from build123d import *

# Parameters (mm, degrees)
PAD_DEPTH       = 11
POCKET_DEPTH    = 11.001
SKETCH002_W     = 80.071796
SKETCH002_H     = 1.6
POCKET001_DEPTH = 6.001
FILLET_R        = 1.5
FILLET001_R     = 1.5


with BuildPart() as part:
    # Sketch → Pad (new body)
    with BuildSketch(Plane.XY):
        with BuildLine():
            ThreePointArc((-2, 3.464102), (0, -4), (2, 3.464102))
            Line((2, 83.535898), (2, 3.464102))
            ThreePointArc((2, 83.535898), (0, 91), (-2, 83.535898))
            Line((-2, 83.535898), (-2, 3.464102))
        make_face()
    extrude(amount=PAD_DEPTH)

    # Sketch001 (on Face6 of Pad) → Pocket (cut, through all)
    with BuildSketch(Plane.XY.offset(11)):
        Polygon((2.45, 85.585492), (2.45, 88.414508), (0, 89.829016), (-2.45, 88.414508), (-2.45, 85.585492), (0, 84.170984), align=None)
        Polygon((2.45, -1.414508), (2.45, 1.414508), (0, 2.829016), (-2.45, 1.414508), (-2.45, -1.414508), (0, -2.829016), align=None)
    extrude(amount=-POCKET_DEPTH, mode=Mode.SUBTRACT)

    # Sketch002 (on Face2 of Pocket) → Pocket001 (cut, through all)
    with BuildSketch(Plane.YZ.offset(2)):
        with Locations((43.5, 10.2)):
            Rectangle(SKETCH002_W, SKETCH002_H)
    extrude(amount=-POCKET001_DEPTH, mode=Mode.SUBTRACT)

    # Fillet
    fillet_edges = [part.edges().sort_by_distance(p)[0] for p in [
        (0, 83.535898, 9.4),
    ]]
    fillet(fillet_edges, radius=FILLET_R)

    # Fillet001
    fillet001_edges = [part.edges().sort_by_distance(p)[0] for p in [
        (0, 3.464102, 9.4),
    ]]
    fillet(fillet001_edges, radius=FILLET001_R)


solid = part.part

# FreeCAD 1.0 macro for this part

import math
import FreeCAD as App
import Part
import Sketcher

V = App.Vector
Q = App.Units.Quantity


def edges_at(feature, points):
    """Names of the edges that pass closest to the given points."""
    edges = feature.Shape.Edges
    near = lambda p: min(range(len(edges)), key=lambda i: edges[i].distToShape(Part.Vertex(*p))[0])
    return sorted({f"Edge{near(p) + 1}" for p in points})

doc = App.newDocument("Part")
body = doc.addObject("PartDesign::Body", "Body")

sketch1 = body.newObject("Sketcher::SketchObject", "Sketch")
sketch1.AttachmentSupport = (doc.getObject("XY_Plane"), [""])
sketch1.MapMode = "FlatFace"
sketch1.addGeometry(Part.ArcOfCircle(Part.Circle(V(0, 0, 0), V(0, 0, 1), 4), math.radians(120), math.radians(420)), False)
sketch1.addGeometry(Part.LineSegment(V(2, 3.5, 0), V(2, 83.5, 0)), False)
sketch1.addGeometry(Part.ArcOfCircle(Part.Circle(V(0, 87, 0), V(0, 0, 1), 4), math.radians(-60), math.radians(240)), False)
sketch1.addGeometry(Part.LineSegment(V(-2, 83.5, 0), V(-2, 3.5, 0)), False)
sketch1.addConstraint(Sketcher.Constraint("Coincident", 0, 2, 1, 1))
sketch1.addConstraint(Sketcher.Constraint("Coincident", 1, 2, 2, 1))
sketch1.addConstraint(Sketcher.Constraint("Coincident", 2, 2, 3, 1))
sketch1.addConstraint(Sketcher.Constraint("Coincident", 3, 2, 0, 1))
sketch1.addConstraint(Sketcher.Constraint("Vertical", 1))
sketch1.addConstraint(Sketcher.Constraint("Vertical", 3))
sketch1.addConstraint(Sketcher.Constraint("Coincident", 0, 3, -1, 1))
sketch1.addConstraint(Sketcher.Constraint("Equal", 0, 2))
sketch1.addConstraint(Sketcher.Constraint("Symmetric", 1, 2, 2, 2, -2))
sketch1.addConstraint(Sketcher.Constraint("Radius", 0, 4.0))
sketch1.addConstraint(Sketcher.Constraint("DistanceY", -1, 1, 2, 3, 87.0))
sketch1.addConstraint(Sketcher.Constraint("DistanceX", -1, 1, 0, 2, 2.0))
pad1 = body.newObject("PartDesign::Pad", "Pad")
pad1.Profile = sketch1
pad1.Length = 11

sketch2 = body.newObject("Sketcher::SketchObject", "Sketch001")
sketch2.AttachmentSupport = (doc.getObject("XY_Plane"), [""])
sketch2.MapMode = "FlatFace"
sketch2.AttachmentOffset = App.Placement(V(0, 0, 11), App.Rotation())
sketch2.addGeometry(Part.LineSegment(V(2.5, 85.6, 0), V(2.5, 88.4, 0)), False)
sketch2.addGeometry(Part.LineSegment(V(2.5, 88.4, 0), V(0, 89.8, 0)), False)
sketch2.addGeometry(Part.LineSegment(V(0, 89.8, 0), V(-2.5, 88.4, 0)), False)
sketch2.addGeometry(Part.LineSegment(V(-2.5, 88.4, 0), V(-2.5, 85.6, 0)), False)
sketch2.addGeometry(Part.LineSegment(V(-2.5, 85.6, 0), V(0, 84.2, 0)), False)
sketch2.addGeometry(Part.LineSegment(V(0, 84.2, 0), V(2.5, 85.6, 0)), False)
sketch2.addGeometry(Part.LineSegment(V(2.5, -1.4, 0), V(2.5, 1.4, 0)), False)
sketch2.addGeometry(Part.LineSegment(V(2.5, 1.4, 0), V(0, 2.8, 0)), False)
sketch2.addGeometry(Part.LineSegment(V(0, 2.8, 0), V(-2.5, 1.4, 0)), False)
sketch2.addGeometry(Part.LineSegment(V(-2.5, 1.4, 0), V(-2.5, -1.4, 0)), False)
sketch2.addGeometry(Part.LineSegment(V(-2.5, -1.4, 0), V(0, -2.8, 0)), False)
sketch2.addGeometry(Part.LineSegment(V(0, -2.8, 0), V(2.5, -1.4, 0)), False)
sketch2.addConstraint(Sketcher.Constraint("Coincident", 0, 2, 1, 1))
sketch2.addConstraint(Sketcher.Constraint("Coincident", 1, 2, 2, 1))
sketch2.addConstraint(Sketcher.Constraint("Coincident", 2, 2, 3, 1))
sketch2.addConstraint(Sketcher.Constraint("Coincident", 3, 2, 4, 1))
sketch2.addConstraint(Sketcher.Constraint("Coincident", 4, 2, 5, 1))
sketch2.addConstraint(Sketcher.Constraint("Coincident", 5, 2, 0, 1))
sketch2.addConstraint(Sketcher.Constraint("Coincident", 6, 2, 7, 1))
sketch2.addConstraint(Sketcher.Constraint("Coincident", 7, 2, 8, 1))
sketch2.addConstraint(Sketcher.Constraint("Coincident", 8, 2, 9, 1))
sketch2.addConstraint(Sketcher.Constraint("Coincident", 9, 2, 10, 1))
sketch2.addConstraint(Sketcher.Constraint("Coincident", 10, 2, 11, 1))
sketch2.addConstraint(Sketcher.Constraint("Coincident", 11, 2, 6, 1))
sketch2.addConstraint(Sketcher.Constraint("Vertical", 0))
sketch2.addConstraint(Sketcher.Constraint("Vertical", 3))
sketch2.addConstraint(Sketcher.Constraint("Vertical", 6))
sketch2.addConstraint(Sketcher.Constraint("Vertical", 9))
sketch2.addConstraint(Sketcher.Constraint("Symmetric", 6, 2, 9, 2, -1, 1))
sketch2.addConstraint(Sketcher.Constraint("Symmetric", 7, 2, 10, 2, -1, 1))
sketch2.addConstraint(Sketcher.Constraint("Symmetric", 0, 2, 2, 2, -2))
sketch2.addConstraint(Sketcher.Constraint("PointOnObject", 1, 2, -2))
sketch2.addConstraint(Sketcher.Constraint("PointOnObject", 4, 2, -2))
sketch2.addConstraint(Sketcher.Constraint("PointOnObject", 7, 2, -2))
sketch2.addConstraint(Sketcher.Constraint("Parallel", 1, 4))
sketch2.addConstraint(Sketcher.Constraint("Parallel", 2, 5))
sketch2.addConstraint(Sketcher.Constraint("Parallel", 4, 7))
sketch2.addConstraint(Sketcher.Constraint("Parallel", 5, 8))
sketch2.addConstraint(Sketcher.Constraint("Parallel", 8, 11))
sketch2.addConstraint(Sketcher.Constraint("Vertical", 5, 2, 6, 2))
sketch2.addConstraint(Sketcher.Constraint("Equal", 3, 6))
sketch2.addConstraint(Sketcher.Constraint("Angle", 1, Q("150.000003 deg")))
sketch2.addConstraint(Sketcher.Constraint("DistanceY", 6, 2, 0, 2, 87.0))
sketch2.addConstraint(Sketcher.Constraint("DistanceX", 2, 2, 0, 2, 4.9))
sketch2.addConstraint(Sketcher.Constraint("DistanceY", 0, 1, 0, 2, 2.829016))
pocket1 = body.newObject("PartDesign::Pocket", "Pocket")
pocket1.Profile = sketch2
pocket1.Type = "ThroughAll"

sketch3 = body.newObject("Sketcher::SketchObject", "Sketch002")
sketch3.AttachmentSupport = (doc.getObject("YZ_Plane"), [""])
sketch3.MapMode = "FlatFace"
sketch3.AttachmentOffset = App.Placement(V(0, 0, 2), App.Rotation())
sketch3.addGeometry(Part.LineSegment(V(3.5, 11, 0), V(3.5, 9.4, 0)), False)
sketch3.addGeometry(Part.LineSegment(V(3.5, 9.4, 0), V(83.5, 9.4, 0)), False)
sketch3.addGeometry(Part.LineSegment(V(83.5, 9.4, 0), V(83.5, 11, 0)), False)
sketch3.addGeometry(Part.LineSegment(V(83.5, 11, 0), V(3.5, 11, 0)), False)
sketch3.addConstraint(Sketcher.Constraint("Coincident", 0, 2, 1, 1))
sketch3.addConstraint(Sketcher.Constraint("Coincident", 1, 2, 2, 1))
sketch3.addConstraint(Sketcher.Constraint("Coincident", 2, 2, 3, 1))
sketch3.addConstraint(Sketcher.Constraint("Coincident", 3, 2, 0, 1))
sketch3.addConstraint(Sketcher.Constraint("Vertical", 0))
sketch3.addConstraint(Sketcher.Constraint("Horizontal", 1))
sketch3.addConstraint(Sketcher.Constraint("Vertical", 2))
sketch3.addConstraint(Sketcher.Constraint("Horizontal", 3))
sketch3.addConstraint(Sketcher.Constraint("DistanceY", 0, 2, 0, 1, 1.6))
sketch3.addConstraint(Sketcher.Constraint("DistanceY", -1, 1, 2, 2, 11.0))
sketch3.addConstraint(Sketcher.Constraint("DistanceX", -1, 1, 0, 2, 3.464102))
sketch3.addConstraint(Sketcher.Constraint("DistanceX", -1, 1, 1, 2, 83.535898))
pocket2 = body.newObject("PartDesign::Pocket", "Pocket001")
pocket2.Profile = sketch3
pocket2.Type = "ThroughAll"
doc.recompute()

fillet = body.newObject("PartDesign::Fillet", "Fillet")
fillet.Base = (pocket2, edges_at(pocket2, [(0, 83.536, 9.4)]))
fillet.Radius = 1.5
doc.recompute()

fillet2 = body.newObject("PartDesign::Fillet", "Fillet001")
fillet2.Base = (fillet, edges_at(fillet, [(0, 3.464, 9.4)]))
fillet2.Radius = 1.5

doc.recompute()
